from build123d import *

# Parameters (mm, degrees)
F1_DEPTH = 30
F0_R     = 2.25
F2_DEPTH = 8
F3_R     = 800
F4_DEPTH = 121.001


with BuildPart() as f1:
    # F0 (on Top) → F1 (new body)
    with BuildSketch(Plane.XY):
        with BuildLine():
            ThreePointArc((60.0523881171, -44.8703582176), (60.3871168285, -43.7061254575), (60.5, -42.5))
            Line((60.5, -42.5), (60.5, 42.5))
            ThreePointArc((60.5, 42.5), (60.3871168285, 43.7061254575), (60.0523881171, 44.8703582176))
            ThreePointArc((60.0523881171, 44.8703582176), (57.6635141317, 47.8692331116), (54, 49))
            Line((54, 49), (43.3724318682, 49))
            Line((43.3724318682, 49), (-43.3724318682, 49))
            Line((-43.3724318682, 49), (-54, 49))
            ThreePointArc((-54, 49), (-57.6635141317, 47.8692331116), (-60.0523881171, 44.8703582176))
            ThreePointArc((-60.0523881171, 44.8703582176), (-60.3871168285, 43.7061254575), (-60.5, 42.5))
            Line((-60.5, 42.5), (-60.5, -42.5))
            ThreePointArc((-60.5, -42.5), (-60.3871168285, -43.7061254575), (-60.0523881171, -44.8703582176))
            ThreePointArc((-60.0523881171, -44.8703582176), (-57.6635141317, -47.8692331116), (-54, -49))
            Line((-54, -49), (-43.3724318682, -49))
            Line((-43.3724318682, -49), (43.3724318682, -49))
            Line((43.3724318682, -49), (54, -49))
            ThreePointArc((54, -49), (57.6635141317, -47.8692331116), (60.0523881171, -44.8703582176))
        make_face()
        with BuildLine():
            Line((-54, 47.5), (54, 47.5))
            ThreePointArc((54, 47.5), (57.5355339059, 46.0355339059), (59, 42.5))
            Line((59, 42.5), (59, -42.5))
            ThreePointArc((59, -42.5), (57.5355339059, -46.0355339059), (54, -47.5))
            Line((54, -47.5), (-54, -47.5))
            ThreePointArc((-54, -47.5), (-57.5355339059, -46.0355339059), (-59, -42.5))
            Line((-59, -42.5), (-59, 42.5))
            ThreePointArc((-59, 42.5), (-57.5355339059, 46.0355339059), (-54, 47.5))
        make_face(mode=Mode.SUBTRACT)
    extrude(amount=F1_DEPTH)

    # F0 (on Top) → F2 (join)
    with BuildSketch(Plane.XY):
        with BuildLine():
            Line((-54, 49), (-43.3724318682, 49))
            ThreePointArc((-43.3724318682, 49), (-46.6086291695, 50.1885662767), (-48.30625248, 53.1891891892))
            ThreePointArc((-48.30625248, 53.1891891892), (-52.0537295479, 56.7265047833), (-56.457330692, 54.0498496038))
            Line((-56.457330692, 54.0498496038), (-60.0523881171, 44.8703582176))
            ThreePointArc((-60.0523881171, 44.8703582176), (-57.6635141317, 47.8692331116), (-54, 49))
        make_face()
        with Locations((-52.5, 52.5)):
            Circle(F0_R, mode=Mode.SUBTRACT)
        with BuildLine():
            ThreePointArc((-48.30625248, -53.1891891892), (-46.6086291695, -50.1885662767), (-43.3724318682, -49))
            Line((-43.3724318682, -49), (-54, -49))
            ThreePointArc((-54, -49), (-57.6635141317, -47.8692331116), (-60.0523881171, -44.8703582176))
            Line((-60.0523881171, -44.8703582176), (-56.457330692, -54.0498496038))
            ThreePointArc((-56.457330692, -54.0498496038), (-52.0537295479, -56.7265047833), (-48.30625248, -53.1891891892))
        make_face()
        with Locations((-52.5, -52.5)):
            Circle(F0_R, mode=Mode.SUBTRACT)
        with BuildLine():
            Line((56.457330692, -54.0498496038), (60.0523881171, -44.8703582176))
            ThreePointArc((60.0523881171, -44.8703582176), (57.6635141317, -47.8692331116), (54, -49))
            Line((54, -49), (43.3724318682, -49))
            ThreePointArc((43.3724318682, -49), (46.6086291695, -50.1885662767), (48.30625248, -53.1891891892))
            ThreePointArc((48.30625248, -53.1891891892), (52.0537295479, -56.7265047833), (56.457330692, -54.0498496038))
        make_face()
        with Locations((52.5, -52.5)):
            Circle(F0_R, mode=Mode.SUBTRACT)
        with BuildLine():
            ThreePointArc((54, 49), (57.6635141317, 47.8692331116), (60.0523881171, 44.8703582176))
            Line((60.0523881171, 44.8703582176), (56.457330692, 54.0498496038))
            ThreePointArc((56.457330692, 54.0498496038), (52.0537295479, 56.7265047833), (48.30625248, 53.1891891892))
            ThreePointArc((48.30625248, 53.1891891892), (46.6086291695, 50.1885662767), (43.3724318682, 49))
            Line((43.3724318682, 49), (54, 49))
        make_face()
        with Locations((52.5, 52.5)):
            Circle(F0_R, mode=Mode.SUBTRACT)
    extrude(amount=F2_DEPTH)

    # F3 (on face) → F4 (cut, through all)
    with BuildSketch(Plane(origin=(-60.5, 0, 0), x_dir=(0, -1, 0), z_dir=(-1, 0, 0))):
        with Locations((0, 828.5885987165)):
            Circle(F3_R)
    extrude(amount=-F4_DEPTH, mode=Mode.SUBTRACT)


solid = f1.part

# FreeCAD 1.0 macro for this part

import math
import FreeCAD as App
import Part
import Sketcher
from FreeCAD import Vector

doc = App.newDocument("Part")
params = doc.addObject("Spreadsheet::Sheet", "Params")
for row, (alias, value) in enumerate([
    ("sketch1_radius", "5 mm"),
    ("sketch1_radius2", "6.5 mm"),
    ("sketch1_width", "108 mm"),
    ("sketch1_height", "85 mm"),
    ("pad1_length", "30 mm"),
    ("sketch2_radius", "5 mm"),
    ("sketch2_diameter", "4.5 mm"),
    ("sketch2_radius2", "6.5 mm"),
    ("sketch2_radius3", "4.25 mm"),
    ("pad2_length", "8 mm"),
    ("sketch3_diameter", "1600 mm"),
], start=1):
    params.set(f"A{row}", alias)
    params.set(f"B{row}", "=" + value)
    params.setAlias(f"B{row}", alias)

body = doc.addObject("PartDesign::Body", "Body")

sketch1 = body.newObject("Sketcher::SketchObject", "Sketch")
sketch1.AttachmentSupport = (doc.getObject("XY_Plane"), [""])
sketch1.MapMode = "FlatFace"
sketch1.addGeometry(Part.ArcOfCircle(Part.Circle(Vector(54, -42.5, 0), Vector(0, 0, 1), 6.5), math.radians(-21.387306), math.radians(0)), False)
sketch1.addGeometry(Part.LineSegment(Vector(60.5, -42.5, 0), Vector(60.5, 42.5, 0)), False)
sketch1.addGeometry(Part.ArcOfCircle(Part.Circle(Vector(54, 42.5, 0), Vector(0, 0, 1), 6.5), math.radians(0), math.radians(21.387306)), False)
sketch1.addGeometry(Part.ArcOfCircle(Part.Circle(Vector(54, 42.5, 0), Vector(0, 0, 1), 6.5), math.radians(21.387306), math.radians(90)), False)
sketch1.addGeometry(Part.LineSegment(Vector(54, 49, 0), Vector(-54, 49, 0)), False)
sketch1.addGeometry(Part.ArcOfCircle(Part.Circle(Vector(-54, 42.5, 0), Vector(0, 0, 1), 6.5), math.radians(90), math.radians(158.612694)), False)
sketch1.addGeometry(Part.ArcOfCircle(Part.Circle(Vector(-54, 42.5, 0), Vector(0, 0, 1), 6.5), math.radians(158.612694), math.radians(180)), False)
sketch1.addGeometry(Part.LineSegment(Vector(-60.5, 42.5, 0), Vector(-60.5, -42.5, 0)), False)
sketch1.addGeometry(Part.ArcOfCircle(Part.Circle(Vector(-54, -42.5, 0), Vector(0, 0, 1), 6.5), math.radians(180), math.radians(201.387306)), False)
sketch1.addGeometry(Part.ArcOfCircle(Part.Circle(Vector(-54, -42.5, 0), Vector(0, 0, 1), 6.5), math.radians(-158.612694), math.radians(-90)), False)
sketch1.addGeometry(Part.LineSegment(Vector(-54, -49, 0), Vector(54, -49, 0)), False)
sketch1.addGeometry(Part.ArcOfCircle(Part.Circle(Vector(54, -42.5, 0), Vector(0, 0, 1), 6.5), math.radians(-90), math.radians(-21.387306)), False)
sketch1.addGeometry(Part.ArcOfCircle(Part.Circle(Vector(-54, 42.5, 0), Vector(0, 0, 1), 5), math.radians(90), math.radians(180)), False)
sketch1.addGeometry(Part.LineSegment(Vector(-54, 47.5, 0), Vector(54, 47.5, 0)), False)
sketch1.addGeometry(Part.ArcOfCircle(Part.Circle(Vector(54, 42.5, 0), Vector(0, 0, 1), 5), math.radians(0), math.radians(90)), False)
sketch1.addGeometry(Part.LineSegment(Vector(59, 42.5, 0), Vector(59, -42.5, 0)), False)
sketch1.addGeometry(Part.ArcOfCircle(Part.Circle(Vector(54, -42.5, 0), Vector(0, 0, 1), 5), math.radians(-90), math.radians(0)), False)
sketch1.addGeometry(Part.LineSegment(Vector(54, -47.5, 0), Vector(-54, -47.5, 0)), False)
sketch1.addGeometry(Part.ArcOfCircle(Part.Circle(Vector(-54, -42.5, 0), Vector(0, 0, 1), 5), math.radians(180), math.radians(270)), False)
sketch1.addGeometry(Part.LineSegment(Vector(-59, -42.5, 0), Vector(-59, 42.5, 0)), False)
sketch1.addConstraint(Sketcher.Constraint("Tangent", 0, 2, 1, 1))
sketch1.addConstraint(Sketcher.Constraint("Tangent", 1, 2, 2, 1))
sketch1.addConstraint(Sketcher.Constraint("Tangent", 2, 2, 3, 1))
sketch1.addConstraint(Sketcher.Constraint("Tangent", 3, 2, 4, 1))
sketch1.addConstraint(Sketcher.Constraint("Tangent", 4, 2, 5, 1))
sketch1.addConstraint(Sketcher.Constraint("Tangent", 5, 2, 6, 1))
sketch1.addConstraint(Sketcher.Constraint("Tangent", 6, 2, 7, 1))
sketch1.addConstraint(Sketcher.Constraint("Tangent", 7, 2, 8, 1))
sketch1.addConstraint(Sketcher.Constraint("Tangent", 8, 2, 9, 1))
sketch1.addConstraint(Sketcher.Constraint("Tangent", 9, 2, 10, 1))
sketch1.addConstraint(Sketcher.Constraint("Tangent", 10, 2, 11, 1))
sketch1.addConstraint(Sketcher.Constraint("Tangent", 11, 2, 0, 1))
sketch1.addConstraint(Sketcher.Constraint("Tangent", 12, 1, 13, 1))
sketch1.addConstraint(Sketcher.Constraint("Tangent", 13, 2, 14, 2))
sketch1.addConstraint(Sketcher.Constraint("Tangent", 14, 1, 15, 1))
sketch1.addConstraint(Sketcher.Constraint("Tangent", 15, 2, 16, 2))
sketch1.addConstraint(Sketcher.Constraint("Tangent", 16, 1, 17, 1))
sketch1.addConstraint(Sketcher.Constraint("Tangent", 17, 2, 18, 2))
sketch1.addConstraint(Sketcher.Constraint("Tangent", 18, 1, 19, 1))
sketch1.addConstraint(Sketcher.Constraint("Tangent", 19, 2, 12, 2))
sketch1.addConstraint(Sketcher.Constraint("Vertical", 1))
sketch1.addConstraint(Sketcher.Constraint("Horizontal", 4))
sketch1.addConstraint(Sketcher.Constraint("Vertical", 7))
sketch1.addConstraint(Sketcher.Constraint("Horizontal", 10))
sketch1.addConstraint(Sketcher.Constraint("Horizontal", 13))
sketch1.addConstraint(Sketcher.Constraint("Vertical", 15))
sketch1.addConstraint(Sketcher.Constraint("Horizontal", 17))
sketch1.addConstraint(Sketcher.Constraint("Vertical", 19))
sketch1.addConstraint(Sketcher.Constraint("Coincident", 12, 3, 5, 3))
sketch1.addConstraint(Sketcher.Constraint("Coincident", 14, 3, 2, 3))
sketch1.addConstraint(Sketcher.Constraint("Coincident", 16, 3, 0, 3))
sketch1.addConstraint(Sketcher.Constraint("Coincident", 18, 3, 8, 3))
sketch1.addConstraint(Sketcher.Constraint("Equal", 0, 2))
sketch1.addConstraint(Sketcher.Constraint("Equal", 2, 3))
sketch1.addConstraint(Sketcher.Constraint("Equal", 3, 5))
sketch1.addConstraint(Sketcher.Constraint("Equal", 5, 6))
sketch1.addConstraint(Sketcher.Constraint("Equal", 6, 8))
sketch1.addConstraint(Sketcher.Constraint("Equal", 8, 9))
sketch1.addConstraint(Sketcher.Constraint("Symmetric", 0, 3, 5, 3, -1, 1))
sketch1.addConstraint(Sketcher.Constraint("Horizontal", 2, 2, 5, 2))
sketch1.addConstraint(Sketcher.Constraint("Horizontal", 8, 2, 11, 2))
sketch1.addConstraint(Sketcher.Constraint("Vertical", 5, 2, 8, 2))
sketch1.addConstraint(Sketcher.Constraint("Radius", 12, 5.0))
sketch1.addConstraint(Sketcher.Constraint("Radius", 0, 6.5))
sketch1.addConstraint(Sketcher.Constraint("DistanceX", 4, 2, 4, 1, 108.0))
sketch1.addConstraint(Sketcher.Constraint("DistanceY", 1, 1, 1, 2, 85.0))
sketch1.addConstraint(Sketcher.Constraint("DistanceX", -1, 1, 2, 2, 60.052388))
sketch1.setExpression("Constraints[42]", "Params.sketch1_radius")
sketch1.setExpression("Constraints[43]", "Params.sketch1_radius2")
sketch1.setExpression("Constraints[44]", "Params.sketch1_width")
sketch1.setExpression("Constraints[45]", "Params.sketch1_height")
pad1 = body.newObject("PartDesign::Pad", "Pad")
pad1.Profile = sketch1
pad1.setExpression("Length", "Params.pad1_length")

sketch2 = body.newObject("Sketcher::SketchObject", "Sketch001")
sketch2.AttachmentSupport = (doc.getObject("XY_Plane"), [""])
sketch2.MapMode = "FlatFace"
sketch2.addGeometry(Part.LineSegment(Vector(-54, 49, 0), Vector(-43.372432, 49, 0)), False)
sketch2.addGeometry(Part.ArcOfCircle(Part.Circle(Vector(-43.372432, 54, 0), Vector(0, 0, 1), 5), math.radians(-170.667582), math.radians(-90)), False)
sketch2.addGeometry(Part.ArcOfCircle(Part.Circle(Vector(-52.5, 52.5, 0), Vector(0, 0, 1), 4.25), math.radians(9.332418), math.radians(158.612694)), False)
sketch2.addGeometry(Part.LineSegment(Vector(-56.457331, 54.04985, 0), Vector(-60.052388, 44.870358, 0)), False)
sketch2.addGeometry(Part.ArcOfCircle(Part.Circle(Vector(-54, 42.5, 0), Vector(0, 0, 1), 6.5), math.radians(90), math.radians(158.612694)), False)
sketch2.addGeometry(Part.Circle(Vector(-52.5, 52.5, 0), Vector(0, 0, 1), 2.25), False)
sketch2.addGeometry(Part.ArcOfCircle(Part.Circle(Vector(-43.372432, -54, 0), Vector(0, 0, 1), 5), math.radians(90), math.radians(170.667582)), False)
sketch2.addGeometry(Part.LineSegment(Vector(-43.372432, -49, 0), Vector(-54, -49, 0)), False)
sketch2.addGeometry(Part.ArcOfCircle(Part.Circle(Vector(-54, -42.5, 0), Vector(0, 0, 1), 6.5), math.radians(-158.612694), math.radians(-90)), False)
sketch2.addGeometry(Part.LineSegment(Vector(-60.052388, -44.870358, 0), Vector(-56.457331, -54.04985, 0)), False)
sketch2.addGeometry(Part.ArcOfCircle(Part.Circle(Vector(-52.5, -52.5, 0), Vector(0, 0, 1), 4.25), math.radians(-158.612694), math.radians(-9.332418)), False)
sketch2.addGeometry(Part.Circle(Vector(-52.5, -52.5, 0), Vector(0, 0, 1), 2.25), False)
sketch2.addGeometry(Part.LineSegment(Vector(56.457331, -54.04985, 0), Vector(60.052388, -44.870358, 0)), False)
sketch2.addGeometry(Part.ArcOfCircle(Part.Circle(Vector(54, -42.5, 0), Vector(0, 0, 1), 6.5), math.radians(-90), math.radians(-21.387306)), False)
sketch2.addGeometry(Part.LineSegment(Vector(54, -49, 0), Vector(43.372432, -49, 0)), False)
sketch2.addGeometry(Part.ArcOfCircle(Part.Circle(Vector(43.372432, -54, 0), Vector(0, 0, 1), 5), math.radians(9.332418), math.radians(90)), False)
sketch2.addGeometry(Part.ArcOfCircle(Part.Circle(Vector(52.5, -52.5, 0), Vector(0, 0, 1), 4.25), math.radians(-170.667582), math.radians(-21.387306)), False)
sketch2.addGeometry(Part.Circle(Vector(52.5, -52.5, 0), Vector(0, 0, 1), 2.25), False)
sketch2.addGeometry(Part.ArcOfCircle(Part.Circle(Vector(54, 42.5, 0), Vector(0, 0, 1), 6.5), math.radians(21.387306), math.radians(90)), False)
sketch2.addGeometry(Part.LineSegment(Vector(60.052388, 44.870358, 0), Vector(56.457331, 54.04985, 0)), False)
sketch2.addGeometry(Part.ArcOfCircle(Part.Circle(Vector(52.5, 52.5, 0), Vector(0, 0, 1), 4.25), math.radians(21.387306), math.radians(170.667582)), False)
sketch2.addGeometry(Part.ArcOfCircle(Part.Circle(Vector(43.372432, 54, 0), Vector(0, 0, 1), 5), math.radians(-90), math.radians(-9.332418)), False)
sketch2.addGeometry(Part.LineSegment(Vector(43.372432, 49, 0), Vector(54, 49, 0)), False)
sketch2.addGeometry(Part.Circle(Vector(52.5, 52.5, 0), Vector(0, 0, 1), 2.25), False)
sketch2.addConstraint(Sketcher.Constraint("Tangent", 0, 2, 1, 2))
sketch2.addConstraint(Sketcher.Constraint("Tangent", 1, 1, 2, 1))
sketch2.addConstraint(Sketcher.Constraint("Tangent", 2, 2, 3, 1))
sketch2.addConstraint(Sketcher.Constraint("Tangent", 3, 2, 4, 2))
sketch2.addConstraint(Sketcher.Constraint("Tangent", 4, 1, 0, 1))
sketch2.addConstraint(Sketcher.Constraint("Tangent", 6, 1, 7, 1))
sketch2.addConstraint(Sketcher.Constraint("Tangent", 7, 2, 8, 2))
sketch2.addConstraint(Sketcher.Constraint("Tangent", 8, 1, 9, 1))
sketch2.addConstraint(Sketcher.Constraint("Tangent", 9, 2, 10, 1))
sketch2.addConstraint(Sketcher.Constraint("Tangent", 10, 2, 6, 2))
sketch2.addConstraint(Sketcher.Constraint("Tangent", 12, 2, 13, 2))
sketch2.addConstraint(Sketcher.Constraint("Tangent", 13, 1, 14, 1))
sketch2.addConstraint(Sketcher.Constraint("Tangent", 14, 2, 15, 2))
sketch2.addConstraint(Sketcher.Constraint("Tangent", 15, 1, 16, 1))
sketch2.addConstraint(Sketcher.Constraint("Tangent", 16, 2, 12, 1))
sketch2.addConstraint(Sketcher.Constraint("Tangent", 18, 1, 19, 1))
sketch2.addConstraint(Sketcher.Constraint("Tangent", 19, 2, 20, 1))
sketch2.addConstraint(Sketcher.Constraint("Tangent", 20, 2, 21, 2))
sketch2.addConstraint(Sketcher.Constraint("Tangent", 21, 1, 22, 1))
sketch2.addConstraint(Sketcher.Constraint("Tangent", 22, 2, 18, 2))
sketch2.addConstraint(Sketcher.Constraint("Horizontal", 0))
sketch2.addConstraint(Sketcher.Constraint("Horizontal", 7))
sketch2.addConstraint(Sketcher.Constraint("Horizontal", 14))
sketch2.addConstraint(Sketcher.Constraint("Horizontal", 22))
sketch2.addConstraint(Sketcher.Constraint("Coincident", 5, 3, 2, 3))
sketch2.addConstraint(Sketcher.Constraint("Coincident", 11, 3, 10, 3))
sketch2.addConstraint(Sketcher.Constraint("Coincident", 17, 3, 16, 3))
sketch2.addConstraint(Sketcher.Constraint("Coincident", 23, 3, 20, 3))
sketch2.addConstraint(Sketcher.Constraint("Equal", 1, 6))
sketch2.addConstraint(Sketcher.Constraint("Equal", 4, 8))
sketch2.addConstraint(Sketcher.Constraint("Equal", 2, 10))
sketch2.addConstraint(Sketcher.Constraint("Equal", 5, 11))
sketch2.addConstraint(Sketcher.Constraint("Equal", 8, 13))
sketch2.addConstraint(Sketcher.Constraint("Equal", 6, 15))
sketch2.addConstraint(Sketcher.Constraint("Equal", 10, 16))
sketch2.addConstraint(Sketcher.Constraint("Equal", 11, 17))
sketch2.addConstraint(Sketcher.Constraint("Equal", 13, 18))
sketch2.addConstraint(Sketcher.Constraint("Equal", 16, 20))
sketch2.addConstraint(Sketcher.Constraint("Equal", 15, 21))
sketch2.addConstraint(Sketcher.Constraint("Equal", 17, 23))
sketch2.addConstraint(Sketcher.Constraint("Symmetric", 4, 3, 13, 3, -1, 1))
sketch2.addConstraint(Sketcher.Constraint("Symmetric", 2, 3, 16, 3, -1, 1))
sketch2.addConstraint(Sketcher.Constraint("Symmetric", 8, 3, 18, 3, -1, 1))
sketch2.addConstraint(Sketcher.Constraint("Symmetric", 10, 3, 20, 3, -1, 1))
sketch2.addConstraint(Sketcher.Constraint("Symmetric", 8, 3, 13, 3, -2))
sketch2.addConstraint(Sketcher.Constraint("Symmetric", 10, 3, 16, 3, -2))
sketch2.addConstraint(Sketcher.Constraint("Radius", 1, 5.0))
sketch2.addConstraint(Sketcher.Constraint("Diameter", 5, 4.5))
sketch2.addConstraint(Sketcher.Constraint("Radius", 4, 6.5))
sketch2.addConstraint(Sketcher.Constraint("Radius", 2, 4.25))
sketch2.addConstraint(Sketcher.Constraint("DistanceY", -1, 1, 1, 3, 54.0))
sketch2.addConstraint(Sketcher.Constraint("DistanceX", 4, 3, -1, 1, 54.0))
sketch2.addConstraint(Sketcher.Constraint("DistanceY", 4, 3, 2, 3, 10.0))
sketch2.addConstraint(Sketcher.Constraint("DistanceX", 10, 3, 16, 3, 105.0))
sketch2.setExpression("Constraints[46]", "Params.sketch2_radius")
sketch2.setExpression("Constraints[47]", "Params.sketch2_diameter")
sketch2.setExpression("Constraints[48]", "Params.sketch2_radius2")
sketch2.setExpression("Constraints[49]", "Params.sketch2_radius3")
pad2 = body.newObject("PartDesign::Pad", "Pad001")
pad2.Profile = sketch2
pad2.setExpression("Length", "Params.pad2_length")

sketch3 = body.newObject("Sketcher::SketchObject", "Sketch002")
sketch3.AttachmentSupport = (doc.getObject("YZ_Plane"), [""])
sketch3.MapMode = "FlatFace"
sketch3.AttachmentOffset = App.Placement(Vector(0, 0, -60.5), App.Rotation())
sketch3.addGeometry(Part.Circle(Vector(0, 828.588599, 0), Vector(0, 0, 1), 800), False)
sketch3.addConstraint(Sketcher.Constraint("PointOnObject", 0, 3, -2))
sketch3.addConstraint(Sketcher.Constraint("Diameter", 0, 1600.0))
sketch3.addConstraint(Sketcher.Constraint("DistanceY", -1, 1, 0, 3, 828.588599))
sketch3.setExpression("Constraints[1]", "Params.sketch3_diameter")
pocket1 = body.newObject("PartDesign::Pocket", "Pocket")
pocket1.Profile = sketch3
pocket1.Type = "ThroughAll"
pocket1.Reversed = True

doc.recompute()
